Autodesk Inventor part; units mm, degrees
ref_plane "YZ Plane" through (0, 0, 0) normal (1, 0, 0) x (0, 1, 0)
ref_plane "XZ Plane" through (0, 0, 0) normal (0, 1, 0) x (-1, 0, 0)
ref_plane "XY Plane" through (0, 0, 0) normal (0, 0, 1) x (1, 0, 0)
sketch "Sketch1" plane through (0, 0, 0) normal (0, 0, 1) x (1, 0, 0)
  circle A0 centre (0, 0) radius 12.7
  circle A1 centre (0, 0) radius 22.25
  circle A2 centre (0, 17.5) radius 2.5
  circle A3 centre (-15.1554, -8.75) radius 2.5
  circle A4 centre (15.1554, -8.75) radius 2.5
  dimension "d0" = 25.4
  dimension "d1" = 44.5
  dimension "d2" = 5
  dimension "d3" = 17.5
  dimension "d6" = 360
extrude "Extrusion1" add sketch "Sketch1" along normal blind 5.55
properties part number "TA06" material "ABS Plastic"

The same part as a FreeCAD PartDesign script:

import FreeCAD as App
import Part
import Sketcher
from FreeCAD import Vector

doc = App.newDocument("Part")
body = doc.addObject("PartDesign::Body", "Body")

sketch1 = body.newObject("Sketcher::SketchObject", "Sketch")
sketch1.AttachmentSupport = (doc.getObject("XY_Plane"), [""])
sketch1.MapMode = "FlatFace"
sketch1.addGeometry([
    Part.Circle(Vector(0, 0, 0), Vector(0, 0, 1), 22.2),
    Part.Circle(Vector(-15.2, -8.8, 0), Vector(0, 0, 1), 2.5),
    Part.Circle(Vector(15.2, -8.8, 0), Vector(0, 0, 1), 2.5),
    Part.Circle(Vector(0, 0, 0), Vector(0, 0, 1), 12.7),
    Part.Circle(Vector(0, 17.5, 0), Vector(0, 0, 1), 2.5),
], False)
sketch1.addConstraint([
    Sketcher.Constraint("Coincident", 0, 3, -1, 1),
    Sketcher.Constraint("Coincident", 3, 3, -1, 1),
    Sketcher.Constraint("Equal", 1, 2),
    Sketcher.Constraint("Equal", 2, 4),
    Sketcher.Constraint("Symmetric", 1, 3, 2, 3, -2),
    Sketcher.Constraint("PointOnObject", 4, 3, -2),
    Sketcher.Constraint("Diameter", 1, 5.0),
    Sketcher.Constraint("Diameter", 0, 44.5),
    Sketcher.Constraint("Diameter", 3, 25.4),
    Sketcher.Constraint("DistanceY", -1, 1, 4, 3, 17.5),
    Sketcher.Constraint("DistanceY", 1, 3, -1, 1, 8.75),
    Sketcher.Constraint("DistanceX", 1, 3, -1, 1, 15.1554),
])
pad1 = body.newObject("PartDesign::Pad", "Pad")
pad1.Profile = sketch1
pad1.Length = 5.55

doc.recompute()
